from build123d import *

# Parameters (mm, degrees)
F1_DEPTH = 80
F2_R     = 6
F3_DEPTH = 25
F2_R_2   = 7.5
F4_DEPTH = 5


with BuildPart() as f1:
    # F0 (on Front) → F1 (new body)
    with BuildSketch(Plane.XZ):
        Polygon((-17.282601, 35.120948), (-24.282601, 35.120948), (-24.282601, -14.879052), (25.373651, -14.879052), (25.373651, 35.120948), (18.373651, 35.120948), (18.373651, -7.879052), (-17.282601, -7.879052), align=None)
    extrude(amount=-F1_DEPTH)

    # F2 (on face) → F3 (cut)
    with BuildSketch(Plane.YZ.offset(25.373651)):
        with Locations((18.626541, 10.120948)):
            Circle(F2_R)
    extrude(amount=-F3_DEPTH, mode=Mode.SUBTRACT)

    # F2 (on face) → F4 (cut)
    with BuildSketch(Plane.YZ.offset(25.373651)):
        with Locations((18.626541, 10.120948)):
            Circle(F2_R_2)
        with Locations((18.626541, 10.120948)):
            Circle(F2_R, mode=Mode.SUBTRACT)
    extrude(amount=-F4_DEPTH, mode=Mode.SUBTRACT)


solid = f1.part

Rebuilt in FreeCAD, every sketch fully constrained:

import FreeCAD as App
import Part
import Sketcher
Q = App.Units.Quantity


def add_polygon(sketch, points):
    """Adds a closed chain of lines whose ends are joined by coincident constraints."""
    first, n = sketch.GeometryCount, len(points)
    for a, b in zip(points, points[1:] + points[:1]):
        sketch.addGeometry(Part.LineSegment(App.Vector(*a, 0), App.Vector(*b, 0)), False)
    for i in range(n):
        sketch.addConstraint(Sketcher.Constraint("Coincident", first + i, 2, first + (i + 1) % n, 1))

doc = App.newDocument("Part")
body = doc.addObject("PartDesign::Body", "Body")

sketch1 = body.newObject("Sketcher::SketchObject", "Sketch")
sketch1.AttachmentSupport = (doc.getObject("XZ_Plane"), [""])
sketch1.MapMode = "FlatFace"
add_polygon(sketch1, [(-17.282601, 35.120948), (-24.282601, 35.120948), (-24.282601, -14.879052), (25.373651, -14.879052), (25.373651, 35.120948), (18.373651, 35.120948), (18.373651, -7.879052), (-17.282601, -7.879052)])
sketch1.addConstraint([
    Sketcher.Constraint("Horizontal", 0),
    Sketcher.Constraint("Vertical", 1),
    Sketcher.Constraint("Horizontal", 2),
    Sketcher.Constraint("Vertical", 3),
    Sketcher.Constraint("Horizontal", 4),
    Sketcher.Constraint("Vertical", 5),
    Sketcher.Constraint("Horizontal", 6),
    Sketcher.Constraint("Vertical", 7),
    Sketcher.Constraint("Horizontal", 0, 2, 3, 2),
    Sketcher.Constraint("Equal", 0, 4),
    Sketcher.Constraint("DistanceX", 0, 2, 0, 1, Q("7 mm")),
    Sketcher.Constraint("DistanceY", 1, 2, 1, 1, Q("50 mm")),
    Sketcher.Constraint("DistanceY", 5, 2, 5, 1, Q("43 mm")),
    Sketcher.Constraint("DistanceX", 2, 1, 2, 2, Q("49.656252 mm")),
    Sketcher.Constraint("DistanceX", 0, 2, -1, 1, Q("24.282601 mm")),
    Sketcher.Constraint("DistanceY", 5, 2, -1, 1, Q("7.879052 mm")),
])
pad1 = body.newObject("PartDesign::Pad", "Pad")
pad1.Profile = sketch1
pad1.Length = 80
pad1.Reversed = True

sketch2 = body.newObject("Sketcher::SketchObject", "Sketch001")
sketch2.AttachmentSupport = (doc.getObject("YZ_Plane"), [""])
sketch2.MapMode = "FlatFace"
sketch2.AttachmentOffset = App.Placement(App.Vector(0, 0, 25.373651), App.Rotation())
sketch2.addGeometry(Part.Circle(App.Vector(18.626541, 10.120948, 0), App.Vector(0, 0, 1), 6), False)
sketch2.addConstraint([
    Sketcher.Constraint("Diameter", 0, Q("12 mm")),
    Sketcher.Constraint("DistanceX", -1, 1, 0, 3, Q("18.626541 mm")),
    Sketcher.Constraint("DistanceY", -1, 1, 0, 3, Q("10.120948 mm")),
])
pocket1 = body.newObject("PartDesign::Pocket", "Pocket")
pocket1.Profile = sketch2
pocket1.Length = 25

sketch3 = body.newObject("Sketcher::SketchObject", "Sketch002")
sketch3.AttachmentSupport = (doc.getObject("YZ_Plane"), [""])
sketch3.MapMode = "FlatFace"
sketch3.AttachmentOffset = App.Placement(App.Vector(0, 0, 25.373651), App.Rotation())
sketch3.addGeometry([
    Part.Circle(App.Vector(18.626541, 10.120948, 0), App.Vector(0, 0, 1), 7.5),
    Part.Circle(App.Vector(18.626541, 10.120948, 0), App.Vector(0, 0, 1), 6),
], False)
sketch3.addConstraint([
    Sketcher.Constraint("Coincident", 1, 3, 0, 3),
    Sketcher.Constraint("Diameter", 0, Q("15 mm")),
    Sketcher.Constraint("Diameter", 1, Q("12 mm")),
    Sketcher.Constraint("DistanceX", -1, 1, 0, 3, Q("18.626541 mm")),
    Sketcher.Constraint("DistanceY", -1, 1, 0, 3, Q("10.120948 mm")),
])
pocket2 = body.newObject("PartDesign::Pocket", "Pocket001")
pocket2.Profile = sketch3
pocket2.Length = 5

doc.recompute()
